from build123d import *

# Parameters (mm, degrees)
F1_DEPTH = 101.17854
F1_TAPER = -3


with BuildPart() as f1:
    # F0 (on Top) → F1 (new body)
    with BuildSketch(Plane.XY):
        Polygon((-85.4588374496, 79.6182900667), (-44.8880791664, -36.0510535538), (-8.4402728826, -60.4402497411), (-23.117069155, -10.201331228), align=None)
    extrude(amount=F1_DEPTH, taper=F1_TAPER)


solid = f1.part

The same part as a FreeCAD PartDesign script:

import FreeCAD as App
import Part
import Sketcher
Q = App.Units.Quantity


def add_polygon(sketch, points):
    """Adds a closed chain of lines whose ends are joined by coincident constraints."""
    first, n = sketch.GeometryCount, len(points)
    for a, b in zip(points, points[1:] + points[:1]):
        sketch.addGeometry(Part.LineSegment(App.Vector(*a, 0), App.Vector(*b, 0)), False)
    for i in range(n):
        sketch.addConstraint(Sketcher.Constraint("Coincident", first + i, 2, first + (i + 1) % n, 1))

doc = App.newDocument("Part")
body = doc.addObject("PartDesign::Body", "Body")

# Sketch on XY plane
sketch1 = doc.addObject("Sketcher::SketchObject", "Sketch")
body.addObject(sketch1)
sketch1.AttachmentSupport = (doc.XY_Plane, [""])
sketch1.MapMode = "FlatFace"
add_polygon(sketch1, [(-85, 80), (-45, -36), (-8, -60), (-23, -10)])  # lines 0-3
sketch1.addConstraint([
    Sketcher.Constraint("Distance", 0, Q("122.578071 mm")),
    Sketcher.Constraint("Distance", 2, Q("52.33887 mm")),
    Sketcher.Constraint("DistanceX", 0, 2, -1, 1, Q("44.888079 mm")),
    Sketcher.Constraint("DistanceY", 1, 2, -1, 1, Q("60.44025 mm")),
    Sketcher.Constraint("DistanceX", 2, 2, -1, 1, Q("23.117069 mm")),
    Sketcher.Constraint("DistanceY", 2, 2, -1, 1, Q("10.201331 mm")),
    Sketcher.Constraint("DistanceY", -1, 1, 3, 2, Q("79.61829 mm")),
    Sketcher.Constraint("DistanceX", 3, 2, 2, 2, Q("62.341768 mm")),
])
pad1 = doc.addObject("PartDesign::Pad", "Pad")
body.addObject(pad1)
pad1.Profile = sketch1
pad1.Length = 101.17854
pad1.TaperAngle = 3

doc.recompute()
